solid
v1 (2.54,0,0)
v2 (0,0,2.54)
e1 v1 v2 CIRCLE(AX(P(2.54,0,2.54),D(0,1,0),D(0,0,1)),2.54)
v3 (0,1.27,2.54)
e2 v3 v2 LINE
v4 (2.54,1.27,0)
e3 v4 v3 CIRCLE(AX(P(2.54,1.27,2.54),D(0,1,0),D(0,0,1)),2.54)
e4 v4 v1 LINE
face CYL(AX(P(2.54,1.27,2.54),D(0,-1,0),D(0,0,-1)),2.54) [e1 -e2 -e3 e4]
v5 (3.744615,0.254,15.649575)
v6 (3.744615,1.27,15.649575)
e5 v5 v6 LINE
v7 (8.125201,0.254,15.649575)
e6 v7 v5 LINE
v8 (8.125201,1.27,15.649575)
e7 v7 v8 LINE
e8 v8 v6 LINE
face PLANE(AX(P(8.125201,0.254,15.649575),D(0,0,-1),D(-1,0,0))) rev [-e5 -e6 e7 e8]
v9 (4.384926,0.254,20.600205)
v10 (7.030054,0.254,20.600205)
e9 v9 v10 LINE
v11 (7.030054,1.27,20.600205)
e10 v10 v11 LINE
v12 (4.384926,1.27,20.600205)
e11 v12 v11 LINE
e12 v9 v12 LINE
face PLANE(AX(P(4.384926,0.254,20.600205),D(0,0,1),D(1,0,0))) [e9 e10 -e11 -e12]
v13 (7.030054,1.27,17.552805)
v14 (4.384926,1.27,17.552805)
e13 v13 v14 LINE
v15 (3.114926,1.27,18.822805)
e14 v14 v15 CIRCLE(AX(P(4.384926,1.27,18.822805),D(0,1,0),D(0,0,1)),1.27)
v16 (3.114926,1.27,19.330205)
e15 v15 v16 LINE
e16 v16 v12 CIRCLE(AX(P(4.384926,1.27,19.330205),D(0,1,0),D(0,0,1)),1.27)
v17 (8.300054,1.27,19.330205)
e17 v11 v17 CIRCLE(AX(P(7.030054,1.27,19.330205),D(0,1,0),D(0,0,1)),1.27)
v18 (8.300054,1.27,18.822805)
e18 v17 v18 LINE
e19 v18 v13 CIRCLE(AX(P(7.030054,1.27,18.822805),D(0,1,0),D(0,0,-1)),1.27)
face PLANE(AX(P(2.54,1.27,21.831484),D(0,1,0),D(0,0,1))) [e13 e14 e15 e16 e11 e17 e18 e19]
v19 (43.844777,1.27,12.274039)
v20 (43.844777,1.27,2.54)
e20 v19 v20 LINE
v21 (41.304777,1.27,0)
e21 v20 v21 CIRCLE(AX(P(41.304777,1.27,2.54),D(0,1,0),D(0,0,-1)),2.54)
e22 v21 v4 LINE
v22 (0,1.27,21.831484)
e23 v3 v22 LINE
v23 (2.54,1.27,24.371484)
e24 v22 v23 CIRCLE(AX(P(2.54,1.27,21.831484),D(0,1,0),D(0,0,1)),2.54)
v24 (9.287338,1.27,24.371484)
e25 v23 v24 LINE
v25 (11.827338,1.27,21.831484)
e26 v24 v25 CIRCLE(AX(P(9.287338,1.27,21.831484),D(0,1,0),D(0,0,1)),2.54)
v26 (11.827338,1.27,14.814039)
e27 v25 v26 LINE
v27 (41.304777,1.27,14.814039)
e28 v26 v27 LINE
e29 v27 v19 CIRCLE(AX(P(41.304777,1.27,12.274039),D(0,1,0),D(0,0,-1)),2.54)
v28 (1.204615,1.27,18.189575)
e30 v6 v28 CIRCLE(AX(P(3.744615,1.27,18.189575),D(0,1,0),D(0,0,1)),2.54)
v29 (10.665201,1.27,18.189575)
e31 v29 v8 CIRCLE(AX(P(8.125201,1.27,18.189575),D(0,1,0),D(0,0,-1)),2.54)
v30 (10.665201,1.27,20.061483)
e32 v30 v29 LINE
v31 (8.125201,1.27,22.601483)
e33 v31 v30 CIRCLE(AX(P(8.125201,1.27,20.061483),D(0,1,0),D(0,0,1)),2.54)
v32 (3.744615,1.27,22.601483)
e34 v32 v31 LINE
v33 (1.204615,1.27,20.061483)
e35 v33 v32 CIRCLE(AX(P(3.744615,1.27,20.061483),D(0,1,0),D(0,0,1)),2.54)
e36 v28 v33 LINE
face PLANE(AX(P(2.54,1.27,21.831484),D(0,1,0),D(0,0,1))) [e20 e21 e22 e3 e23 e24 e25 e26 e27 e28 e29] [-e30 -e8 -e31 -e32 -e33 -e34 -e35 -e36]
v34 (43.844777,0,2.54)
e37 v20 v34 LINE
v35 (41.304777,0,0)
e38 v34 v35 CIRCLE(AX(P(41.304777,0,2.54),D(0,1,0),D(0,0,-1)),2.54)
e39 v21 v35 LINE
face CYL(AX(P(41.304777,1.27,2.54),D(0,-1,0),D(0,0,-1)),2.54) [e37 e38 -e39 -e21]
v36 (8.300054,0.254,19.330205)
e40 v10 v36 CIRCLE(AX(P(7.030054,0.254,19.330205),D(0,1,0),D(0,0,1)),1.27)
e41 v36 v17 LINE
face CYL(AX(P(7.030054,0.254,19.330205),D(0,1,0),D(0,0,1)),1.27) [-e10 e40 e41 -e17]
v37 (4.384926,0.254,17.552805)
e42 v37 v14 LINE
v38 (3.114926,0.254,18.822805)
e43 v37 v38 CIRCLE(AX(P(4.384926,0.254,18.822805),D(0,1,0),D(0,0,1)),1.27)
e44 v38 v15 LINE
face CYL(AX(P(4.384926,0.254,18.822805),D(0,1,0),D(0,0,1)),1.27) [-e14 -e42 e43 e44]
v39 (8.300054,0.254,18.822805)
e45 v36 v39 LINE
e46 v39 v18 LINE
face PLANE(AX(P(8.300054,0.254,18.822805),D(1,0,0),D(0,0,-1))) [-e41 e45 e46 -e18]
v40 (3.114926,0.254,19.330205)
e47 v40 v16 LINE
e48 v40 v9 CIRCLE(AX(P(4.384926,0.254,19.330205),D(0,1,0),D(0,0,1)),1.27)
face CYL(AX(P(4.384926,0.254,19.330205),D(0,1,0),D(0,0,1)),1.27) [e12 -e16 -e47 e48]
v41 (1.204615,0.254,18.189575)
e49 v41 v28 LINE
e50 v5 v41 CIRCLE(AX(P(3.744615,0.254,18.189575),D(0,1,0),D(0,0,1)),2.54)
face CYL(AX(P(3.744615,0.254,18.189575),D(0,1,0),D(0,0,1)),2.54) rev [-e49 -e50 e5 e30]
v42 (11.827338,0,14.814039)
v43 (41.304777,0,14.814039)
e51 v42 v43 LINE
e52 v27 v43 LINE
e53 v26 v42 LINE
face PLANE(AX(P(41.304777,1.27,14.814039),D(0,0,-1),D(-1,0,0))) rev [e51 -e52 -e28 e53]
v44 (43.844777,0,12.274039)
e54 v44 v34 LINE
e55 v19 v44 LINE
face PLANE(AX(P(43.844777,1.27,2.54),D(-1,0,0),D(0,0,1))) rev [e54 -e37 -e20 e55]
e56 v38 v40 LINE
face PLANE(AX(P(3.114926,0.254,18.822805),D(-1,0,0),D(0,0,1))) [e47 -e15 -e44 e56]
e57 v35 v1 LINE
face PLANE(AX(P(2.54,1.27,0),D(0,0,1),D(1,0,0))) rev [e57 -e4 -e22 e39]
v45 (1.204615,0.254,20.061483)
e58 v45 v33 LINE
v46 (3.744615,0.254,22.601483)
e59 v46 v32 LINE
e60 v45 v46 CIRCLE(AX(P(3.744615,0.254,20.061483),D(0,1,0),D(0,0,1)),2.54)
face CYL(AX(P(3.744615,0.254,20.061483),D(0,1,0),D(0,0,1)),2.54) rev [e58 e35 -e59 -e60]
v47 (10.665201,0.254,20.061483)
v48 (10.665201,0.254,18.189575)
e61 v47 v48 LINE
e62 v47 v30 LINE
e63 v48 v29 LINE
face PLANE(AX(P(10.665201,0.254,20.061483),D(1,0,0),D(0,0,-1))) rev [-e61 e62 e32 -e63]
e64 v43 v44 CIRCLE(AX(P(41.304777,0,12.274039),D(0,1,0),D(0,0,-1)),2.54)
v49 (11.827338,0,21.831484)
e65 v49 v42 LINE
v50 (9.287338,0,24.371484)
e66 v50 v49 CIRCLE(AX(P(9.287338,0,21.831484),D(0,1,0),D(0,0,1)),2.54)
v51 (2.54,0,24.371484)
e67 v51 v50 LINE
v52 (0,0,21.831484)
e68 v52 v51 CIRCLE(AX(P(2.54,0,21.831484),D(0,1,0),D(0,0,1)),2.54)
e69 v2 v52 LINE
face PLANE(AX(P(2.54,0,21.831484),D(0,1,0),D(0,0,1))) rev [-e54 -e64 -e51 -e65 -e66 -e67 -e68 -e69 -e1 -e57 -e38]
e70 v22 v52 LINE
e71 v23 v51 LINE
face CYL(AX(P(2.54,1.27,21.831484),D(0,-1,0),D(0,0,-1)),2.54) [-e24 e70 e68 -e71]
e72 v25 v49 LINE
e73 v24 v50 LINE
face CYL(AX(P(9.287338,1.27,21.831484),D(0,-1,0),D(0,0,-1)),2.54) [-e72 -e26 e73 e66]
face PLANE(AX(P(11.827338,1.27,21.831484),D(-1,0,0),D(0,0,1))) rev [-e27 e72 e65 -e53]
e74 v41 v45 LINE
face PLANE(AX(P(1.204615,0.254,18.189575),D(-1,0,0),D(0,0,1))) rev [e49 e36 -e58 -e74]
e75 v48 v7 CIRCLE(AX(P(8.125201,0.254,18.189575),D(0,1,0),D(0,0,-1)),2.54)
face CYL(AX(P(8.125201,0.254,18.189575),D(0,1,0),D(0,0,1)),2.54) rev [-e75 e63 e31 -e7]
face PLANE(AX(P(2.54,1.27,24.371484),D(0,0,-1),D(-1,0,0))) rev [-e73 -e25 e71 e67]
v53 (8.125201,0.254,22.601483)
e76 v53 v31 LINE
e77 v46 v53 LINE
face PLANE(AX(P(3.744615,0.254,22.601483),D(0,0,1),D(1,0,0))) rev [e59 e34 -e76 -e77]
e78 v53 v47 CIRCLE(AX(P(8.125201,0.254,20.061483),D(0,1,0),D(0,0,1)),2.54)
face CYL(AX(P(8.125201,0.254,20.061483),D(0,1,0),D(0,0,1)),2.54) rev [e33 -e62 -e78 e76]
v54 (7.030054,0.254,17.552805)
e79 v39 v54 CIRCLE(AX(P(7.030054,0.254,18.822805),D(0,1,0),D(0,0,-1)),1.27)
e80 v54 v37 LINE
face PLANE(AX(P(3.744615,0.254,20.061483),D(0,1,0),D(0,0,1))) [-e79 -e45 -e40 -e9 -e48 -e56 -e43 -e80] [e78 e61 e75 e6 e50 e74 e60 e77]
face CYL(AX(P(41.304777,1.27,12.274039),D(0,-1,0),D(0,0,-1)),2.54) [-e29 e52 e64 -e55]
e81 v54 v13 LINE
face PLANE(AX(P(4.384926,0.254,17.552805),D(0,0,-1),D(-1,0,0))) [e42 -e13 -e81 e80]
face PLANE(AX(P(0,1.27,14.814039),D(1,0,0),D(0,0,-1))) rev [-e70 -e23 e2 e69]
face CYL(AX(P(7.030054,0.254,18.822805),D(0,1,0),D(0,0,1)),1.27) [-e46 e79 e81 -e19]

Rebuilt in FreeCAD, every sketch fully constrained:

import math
import FreeCAD as App
import Part
import Sketcher
Q = App.Units.Quantity

doc = App.newDocument("Part")
body = doc.addObject("PartDesign::Body", "Body")

# Sketch on XZ plane
sketch1 = body.newObject("Sketcher::SketchObject", "Sketch")
sketch1.AttachmentSupport = (doc.getObject("XZ_Plane"), [""])
sketch1.MapMode = "FlatFace"
sketch1.addGeometry([
    Part.LineSegment(App.Vector(41.3, 0, 0), App.Vector(2.5, 0, 0)),  # 0
    Part.ArcOfCircle(Part.Circle(App.Vector(2.5, 2.5, 0), App.Vector(0, 0, 1), 2.5), math.radians(-180), math.radians(-90)),  # 1
    Part.LineSegment(App.Vector(0, 2.5, 0), App.Vector(0, 21.8, 0)),  # 2
    Part.ArcOfCircle(Part.Circle(App.Vector(2.5, 21.8, 0), App.Vector(0, 0, 1), 2.5), math.radians(90), math.radians(180)),  # 3
    Part.LineSegment(App.Vector(2.5, 24.4, 0), App.Vector(9.3, 24.4, 0)),  # 4
    Part.ArcOfCircle(Part.Circle(App.Vector(9.3, 21.8, 0), App.Vector(0, 0, 1), 2.5), math.radians(0), math.radians(90)),  # 5
    Part.LineSegment(App.Vector(11.8, 21.8, 0), App.Vector(11.8, 14.8, 0)),  # 6
    Part.LineSegment(App.Vector(11.8, 14.8, 0), App.Vector(41.3, 14.8, 0)),  # 7
    Part.ArcOfCircle(Part.Circle(App.Vector(41.3, 12.3, 0), App.Vector(0, 0, 1), 2.5), math.radians(0), math.radians(90)),  # 8
    Part.LineSegment(App.Vector(43.8, 12.3, 0), App.Vector(43.8, 2.5, 0)),  # 9
    Part.ArcOfCircle(Part.Circle(App.Vector(41.3, 2.5, 0), App.Vector(0, 0, 1), 2.5), math.radians(-90), math.radians(0)),  # 10
], False)
sketch1.addConstraint([
    Sketcher.Constraint("Tangent", 0, 2, 1, 2),
    Sketcher.Constraint("Tangent", 1, 1, 2, 1),
    Sketcher.Constraint("Tangent", 2, 2, 3, 2),
    Sketcher.Constraint("Tangent", 3, 1, 4, 1),
    Sketcher.Constraint("Tangent", 4, 2, 5, 2),
    Sketcher.Constraint("Tangent", 5, 1, 6, 1),
    Sketcher.Constraint("Coincident", 6, 2, 7, 1),
    Sketcher.Constraint("Tangent", 7, 2, 8, 2),
    Sketcher.Constraint("Tangent", 8, 1, 9, 1),
    Sketcher.Constraint("Tangent", 9, 2, 10, 2),
    Sketcher.Constraint("Tangent", 10, 1, 0, 1),
    Sketcher.Constraint("Horizontal", 0),
    Sketcher.Constraint("Vertical", 2),
    Sketcher.Constraint("Horizontal", 4),
    Sketcher.Constraint("Vertical", 6),
    Sketcher.Constraint("Horizontal", 7),
    Sketcher.Constraint("Vertical", 9),
    Sketcher.Constraint("Equal", 1, 3),
    Sketcher.Constraint("Equal", 3, 5),
    Sketcher.Constraint("Equal", 5, 8),
    Sketcher.Constraint("Equal", 8, 10),
    Sketcher.Constraint("PointOnObject", 0, 2, -1),
    Sketcher.Constraint("PointOnObject", 1, 1, -2),
    Sketcher.Constraint("Radius", 1, Q("0.1 in")),
    Sketcher.Constraint("DistanceX", 7, 1, 7, 2, Q("29.477439 mm")),
    Sketcher.Constraint("DistanceY", 9, 2, 9, 1, Q("9.734039 mm")),
    Sketcher.Constraint("DistanceX", 0, 2, 0, 1, Q("38.764777 mm")),
    Sketcher.Constraint("DistanceY", 2, 1, 2, 2, Q("19.291484 mm")),
])
pad1 = body.newObject("PartDesign::Pad", "Pad")
pad1.Profile = sketch1
pad1.Length = Q("0.05 in")
pad1.Reversed = True

# Sketch on XZ plane
sketch2 = body.newObject("Sketcher::SketchObject", "Sketch001")
sketch2.AttachmentSupport = (doc.getObject("XZ_Plane"), [""])
sketch2.MapMode = "FlatFace"
sketch2.AttachmentOffset = App.Placement(App.Vector(0, 0, -0.05 * 25.4), App.Rotation())
sketch2.addGeometry([
    Part.LineSegment(App.Vector(8.1, 15.6, 0), App.Vector(3.7, 15.6, 0)),  # 0
    Part.ArcOfCircle(Part.Circle(App.Vector(3.7, 18.2, 0), App.Vector(0, 0, 1), 2.5), math.radians(-180), math.radians(-90)),  # 1
    Part.LineSegment(App.Vector(1.2, 18.2, 0), App.Vector(1.2, 20.1, 0)),  # 2
    Part.ArcOfCircle(Part.Circle(App.Vector(3.7, 20.1, 0), App.Vector(0, 0, 1), 2.5), math.radians(90), math.radians(180)),  # 3
    Part.LineSegment(App.Vector(3.7, 22.6, 0), App.Vector(8.1, 22.6, 0)),  # 4
    Part.ArcOfCircle(Part.Circle(App.Vector(8.1, 20.1, 0), App.Vector(0, 0, 1), 2.5), math.radians(0), math.radians(90)),  # 5
    Part.LineSegment(App.Vector(10.7, 20.1, 0), App.Vector(10.7, 18.2, 0)),  # 6
    Part.ArcOfCircle(Part.Circle(App.Vector(8.1, 18.2, 0), App.Vector(0, 0, 1), 2.5), math.radians(-90), math.radians(0)),  # 7
    Part.ArcOfCircle(Part.Circle(App.Vector(4.4, 18.8, 0), App.Vector(0, 0, 1), 1.3), math.radians(180), math.radians(270)),  # 8
    Part.LineSegment(App.Vector(4.4, 17.6, 0), App.Vector(7, 17.6, 0)),  # 9
    Part.ArcOfCircle(Part.Circle(App.Vector(7, 18.8, 0), App.Vector(0, 0, 1), 1.3), math.radians(-90), math.radians(0)),  # 10
    Part.LineSegment(App.Vector(8.3, 18.8, 0), App.Vector(8.3, 19.3, 0)),  # 11
    Part.ArcOfCircle(Part.Circle(App.Vector(7, 19.3, 0), App.Vector(0, 0, 1), 1.3), math.radians(0), math.radians(90)),  # 12
    Part.LineSegment(App.Vector(7, 20.6, 0), App.Vector(4.4, 20.6, 0)),  # 13
    Part.ArcOfCircle(Part.Circle(App.Vector(4.4, 19.3, 0), App.Vector(0, 0, 1), 1.3), math.radians(90), math.radians(180)),  # 14
    Part.LineSegment(App.Vector(3.1, 19.3, 0), App.Vector(3.1, 18.8, 0)),  # 15
], False)
sketch2.addConstraint([
    Sketcher.Constraint("Tangent", 0, 2, 1, 2),
    Sketcher.Constraint("Tangent", 1, 1, 2, 1),
    Sketcher.Constraint("Tangent", 2, 2, 3, 2),
    Sketcher.Constraint("Tangent", 3, 1, 4, 1),
    Sketcher.Constraint("Tangent", 4, 2, 5, 2),
    Sketcher.Constraint("Tangent", 5, 1, 6, 1),
    Sketcher.Constraint("Tangent", 6, 2, 7, 2),
    Sketcher.Constraint("Tangent", 7, 1, 0, 1),
    Sketcher.Constraint("Tangent", 8, 2, 9, 1),
    Sketcher.Constraint("Tangent", 9, 2, 10, 1),
    Sketcher.Constraint("Tangent", 10, 2, 11, 1),
    Sketcher.Constraint("Tangent", 11, 2, 12, 1),
    Sketcher.Constraint("Tangent", 12, 2, 13, 1),
    Sketcher.Constraint("Tangent", 13, 2, 14, 1),
    Sketcher.Constraint("Tangent", 14, 2, 15, 1),
    Sketcher.Constraint("Tangent", 15, 2, 8, 1),
    Sketcher.Constraint("Horizontal", 0),
    Sketcher.Constraint("Vertical", 2),
    Sketcher.Constraint("Horizontal", 4),
    Sketcher.Constraint("Vertical", 6),
    Sketcher.Constraint("Horizontal", 9),
    Sketcher.Constraint("Vertical", 11),
    Sketcher.Constraint("Horizontal", 13),
    Sketcher.Constraint("Vertical", 15),
    Sketcher.Constraint("Equal", 1, 3),
    Sketcher.Constraint("Equal", 3, 5),
    Sketcher.Constraint("Equal", 5, 7),
    Sketcher.Constraint("Equal", 8, 10),
    Sketcher.Constraint("Equal", 10, 12),
    Sketcher.Constraint("Equal", 12, 14),
    Sketcher.Constraint("Radius", 1, Q("0.1 in")),
    Sketcher.Constraint("Radius", 8, Q("0.05 in")),
    Sketcher.Constraint("DistanceY", 11, 1, 11, 2, Q("0.5074 mm")),
    Sketcher.Constraint("DistanceX", 9, 1, 9, 2, Q("2.645129 mm")),
    Sketcher.Constraint("DistanceX", -1, 1, 5, 3, Q("8.125201 mm")),
    Sketcher.Constraint("DistanceX", 0, 2, 0, 1, Q("4.380586 mm")),
    Sketcher.Constraint("DistanceY", 2, 1, 2, 2, Q("1.871908 mm")),
    Sketcher.Constraint("DistanceX", 1, 3, 8, 3, Q("0.640311 mm")),
    Sketcher.Constraint("DistanceY", 1, 3, 8, 3, Q("0.63323 mm")),
    Sketcher.Constraint("DistanceY", -1, 1, 1, 3, Q("18.189575 mm")),
])
pocket1 = body.newObject("PartDesign::Pocket", "Pocket")
pocket1.Profile = sketch2
pocket1.Length = Q("0.04 in")
pocket1.Reversed = True

doc.recompute()
